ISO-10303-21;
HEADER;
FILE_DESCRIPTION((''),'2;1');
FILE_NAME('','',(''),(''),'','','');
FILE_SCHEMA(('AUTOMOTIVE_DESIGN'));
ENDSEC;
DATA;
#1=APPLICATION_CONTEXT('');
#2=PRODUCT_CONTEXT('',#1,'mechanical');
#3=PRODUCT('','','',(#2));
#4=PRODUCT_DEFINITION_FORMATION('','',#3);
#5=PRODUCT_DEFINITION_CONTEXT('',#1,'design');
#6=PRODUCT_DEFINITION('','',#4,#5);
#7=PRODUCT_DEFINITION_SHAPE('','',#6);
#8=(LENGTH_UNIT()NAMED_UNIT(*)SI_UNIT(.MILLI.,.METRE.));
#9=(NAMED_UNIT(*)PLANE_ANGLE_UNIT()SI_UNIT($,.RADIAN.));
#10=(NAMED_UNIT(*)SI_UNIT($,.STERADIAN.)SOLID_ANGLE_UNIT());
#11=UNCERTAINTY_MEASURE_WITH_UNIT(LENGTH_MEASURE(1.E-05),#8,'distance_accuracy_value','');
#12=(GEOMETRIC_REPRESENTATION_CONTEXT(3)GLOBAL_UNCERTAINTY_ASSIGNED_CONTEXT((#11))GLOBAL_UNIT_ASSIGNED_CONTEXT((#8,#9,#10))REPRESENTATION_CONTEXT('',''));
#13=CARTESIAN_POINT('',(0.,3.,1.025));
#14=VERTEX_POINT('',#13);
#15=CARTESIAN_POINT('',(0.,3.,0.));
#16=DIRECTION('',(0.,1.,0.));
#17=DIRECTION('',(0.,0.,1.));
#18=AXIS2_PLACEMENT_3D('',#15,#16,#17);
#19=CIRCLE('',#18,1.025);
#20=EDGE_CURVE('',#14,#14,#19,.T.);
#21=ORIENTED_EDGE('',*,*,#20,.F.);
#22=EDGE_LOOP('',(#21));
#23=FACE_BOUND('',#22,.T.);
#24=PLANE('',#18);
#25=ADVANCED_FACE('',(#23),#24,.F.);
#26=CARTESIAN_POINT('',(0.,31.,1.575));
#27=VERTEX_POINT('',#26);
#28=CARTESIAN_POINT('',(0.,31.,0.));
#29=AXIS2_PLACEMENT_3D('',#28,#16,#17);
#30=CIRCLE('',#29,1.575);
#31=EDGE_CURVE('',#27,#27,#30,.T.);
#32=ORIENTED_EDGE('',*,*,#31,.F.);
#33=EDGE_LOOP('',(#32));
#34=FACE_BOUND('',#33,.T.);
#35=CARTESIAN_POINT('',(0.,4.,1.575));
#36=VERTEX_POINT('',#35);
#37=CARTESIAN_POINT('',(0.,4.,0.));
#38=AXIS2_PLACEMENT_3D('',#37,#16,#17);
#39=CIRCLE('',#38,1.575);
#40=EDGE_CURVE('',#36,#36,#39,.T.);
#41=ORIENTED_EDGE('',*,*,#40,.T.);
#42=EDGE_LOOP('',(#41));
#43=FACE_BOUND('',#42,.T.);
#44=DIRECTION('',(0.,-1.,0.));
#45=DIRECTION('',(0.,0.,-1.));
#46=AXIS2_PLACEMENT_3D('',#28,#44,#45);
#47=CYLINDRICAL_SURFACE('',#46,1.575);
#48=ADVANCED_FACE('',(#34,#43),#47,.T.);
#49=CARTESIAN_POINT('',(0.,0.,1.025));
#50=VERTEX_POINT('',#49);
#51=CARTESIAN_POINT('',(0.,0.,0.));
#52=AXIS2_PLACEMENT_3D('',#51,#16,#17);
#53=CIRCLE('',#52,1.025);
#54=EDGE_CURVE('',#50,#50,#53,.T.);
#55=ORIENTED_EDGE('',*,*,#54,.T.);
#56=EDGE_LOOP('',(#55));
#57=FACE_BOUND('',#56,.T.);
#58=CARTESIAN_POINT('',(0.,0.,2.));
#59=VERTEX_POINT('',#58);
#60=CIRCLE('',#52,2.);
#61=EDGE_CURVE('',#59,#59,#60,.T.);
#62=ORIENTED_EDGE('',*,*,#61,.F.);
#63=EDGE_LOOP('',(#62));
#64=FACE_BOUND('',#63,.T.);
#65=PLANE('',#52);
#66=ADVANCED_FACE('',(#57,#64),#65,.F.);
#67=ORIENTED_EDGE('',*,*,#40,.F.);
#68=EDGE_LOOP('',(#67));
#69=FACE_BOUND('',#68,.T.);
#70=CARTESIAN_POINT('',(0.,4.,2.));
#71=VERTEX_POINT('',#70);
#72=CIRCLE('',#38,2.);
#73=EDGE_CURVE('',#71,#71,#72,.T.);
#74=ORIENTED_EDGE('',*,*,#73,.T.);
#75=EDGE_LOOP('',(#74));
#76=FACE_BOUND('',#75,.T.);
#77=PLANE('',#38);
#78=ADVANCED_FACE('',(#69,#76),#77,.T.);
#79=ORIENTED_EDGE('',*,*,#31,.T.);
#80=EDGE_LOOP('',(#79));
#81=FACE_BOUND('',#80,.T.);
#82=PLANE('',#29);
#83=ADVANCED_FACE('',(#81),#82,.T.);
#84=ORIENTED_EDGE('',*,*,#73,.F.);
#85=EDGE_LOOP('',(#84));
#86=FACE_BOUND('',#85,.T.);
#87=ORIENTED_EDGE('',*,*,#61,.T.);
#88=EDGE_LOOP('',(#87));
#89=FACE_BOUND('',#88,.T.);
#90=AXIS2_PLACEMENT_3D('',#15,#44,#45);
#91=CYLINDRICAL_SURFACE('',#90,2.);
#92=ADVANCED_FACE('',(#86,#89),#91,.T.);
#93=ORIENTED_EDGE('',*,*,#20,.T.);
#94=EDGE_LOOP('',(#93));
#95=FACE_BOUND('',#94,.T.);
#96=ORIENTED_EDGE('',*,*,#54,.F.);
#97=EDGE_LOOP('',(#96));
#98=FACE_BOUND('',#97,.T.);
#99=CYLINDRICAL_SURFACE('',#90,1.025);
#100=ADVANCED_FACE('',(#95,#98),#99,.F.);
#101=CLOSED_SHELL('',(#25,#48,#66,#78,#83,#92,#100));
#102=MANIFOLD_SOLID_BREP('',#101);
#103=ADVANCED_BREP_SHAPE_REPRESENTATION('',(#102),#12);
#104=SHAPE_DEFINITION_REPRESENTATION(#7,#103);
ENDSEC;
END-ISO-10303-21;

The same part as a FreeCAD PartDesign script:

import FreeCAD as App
import Part
import Sketcher

V = App.Vector
Q = App.Units.Quantity

doc = App.newDocument("Part")
body = doc.addObject("PartDesign::Body", "Body")

sketch1 = body.newObject("Sketcher::SketchObject", "Sketch")
sketch1.AttachmentSupport = (doc.getObject("XZ_Plane"), [""])
sketch1.MapMode = "FlatFace"
sketch1.addGeometry(Part.Circle(V(0, 0, 0), V(0, 0, 1), 2), False)
sketch1.addGeometry(Part.Circle(V(0, 0, 0), V(0, 0, 1), 1), False)
sketch1.addConstraint(Sketcher.Constraint("Coincident", 0, 3, -1, 1))
sketch1.addConstraint(Sketcher.Constraint("Coincident", 1, 3, -1, 1))
sketch1.addConstraint(Sketcher.Constraint("Diameter", 0, Q("4 mm")))
sketch1.addConstraint(Sketcher.Constraint("Diameter", 1, Q("2.05 mm")))
pad1 = body.newObject("PartDesign::Pad", "Pad")
pad1.Profile = sketch1
pad1.Length = 3
pad1.Reversed = True

sketch2 = body.newObject("Sketcher::SketchObject", "Sketch001")
sketch2.AttachmentSupport = (doc.getObject("XZ_Plane"), [""])
sketch2.MapMode = "FlatFace"
sketch2.AttachmentOffset = App.Placement(V(0, 0, -3), App.Rotation())
sketch2.addGeometry(Part.Circle(V(0, 0, 0), V(0, 0, 1), 2), False)
sketch2.addConstraint(Sketcher.Constraint("Coincident", 0, 3, -1, 1))
sketch2.addConstraint(Sketcher.Constraint("Diameter", 0, Q("4 mm")))
pad2 = body.newObject("PartDesign::Pad", "Pad001")
pad2.Profile = sketch2
pad2.Length = 1
pad2.Reversed = True

sketch3 = body.newObject("Sketcher::SketchObject", "Sketch002")
sketch3.AttachmentSupport = (doc.getObject("XZ_Plane"), [""])
sketch3.MapMode = "FlatFace"
sketch3.AttachmentOffset = App.Placement(V(0, 0, -4), App.Rotation())
sketch3.addGeometry(Part.Circle(V(0, 0, 0), V(0, 0, 1), 1.6), False)
sketch3.addConstraint(Sketcher.Constraint("Coincident", 0, 3, -1, 1))
sketch3.addConstraint(Sketcher.Constraint("Diameter", 0, Q("3.15 mm")))
pad3 = body.newObject("PartDesign::Pad", "Pad002")
pad3.Profile = sketch3
pad3.Length = 27
pad3.Reversed = True

doc.recompute()
